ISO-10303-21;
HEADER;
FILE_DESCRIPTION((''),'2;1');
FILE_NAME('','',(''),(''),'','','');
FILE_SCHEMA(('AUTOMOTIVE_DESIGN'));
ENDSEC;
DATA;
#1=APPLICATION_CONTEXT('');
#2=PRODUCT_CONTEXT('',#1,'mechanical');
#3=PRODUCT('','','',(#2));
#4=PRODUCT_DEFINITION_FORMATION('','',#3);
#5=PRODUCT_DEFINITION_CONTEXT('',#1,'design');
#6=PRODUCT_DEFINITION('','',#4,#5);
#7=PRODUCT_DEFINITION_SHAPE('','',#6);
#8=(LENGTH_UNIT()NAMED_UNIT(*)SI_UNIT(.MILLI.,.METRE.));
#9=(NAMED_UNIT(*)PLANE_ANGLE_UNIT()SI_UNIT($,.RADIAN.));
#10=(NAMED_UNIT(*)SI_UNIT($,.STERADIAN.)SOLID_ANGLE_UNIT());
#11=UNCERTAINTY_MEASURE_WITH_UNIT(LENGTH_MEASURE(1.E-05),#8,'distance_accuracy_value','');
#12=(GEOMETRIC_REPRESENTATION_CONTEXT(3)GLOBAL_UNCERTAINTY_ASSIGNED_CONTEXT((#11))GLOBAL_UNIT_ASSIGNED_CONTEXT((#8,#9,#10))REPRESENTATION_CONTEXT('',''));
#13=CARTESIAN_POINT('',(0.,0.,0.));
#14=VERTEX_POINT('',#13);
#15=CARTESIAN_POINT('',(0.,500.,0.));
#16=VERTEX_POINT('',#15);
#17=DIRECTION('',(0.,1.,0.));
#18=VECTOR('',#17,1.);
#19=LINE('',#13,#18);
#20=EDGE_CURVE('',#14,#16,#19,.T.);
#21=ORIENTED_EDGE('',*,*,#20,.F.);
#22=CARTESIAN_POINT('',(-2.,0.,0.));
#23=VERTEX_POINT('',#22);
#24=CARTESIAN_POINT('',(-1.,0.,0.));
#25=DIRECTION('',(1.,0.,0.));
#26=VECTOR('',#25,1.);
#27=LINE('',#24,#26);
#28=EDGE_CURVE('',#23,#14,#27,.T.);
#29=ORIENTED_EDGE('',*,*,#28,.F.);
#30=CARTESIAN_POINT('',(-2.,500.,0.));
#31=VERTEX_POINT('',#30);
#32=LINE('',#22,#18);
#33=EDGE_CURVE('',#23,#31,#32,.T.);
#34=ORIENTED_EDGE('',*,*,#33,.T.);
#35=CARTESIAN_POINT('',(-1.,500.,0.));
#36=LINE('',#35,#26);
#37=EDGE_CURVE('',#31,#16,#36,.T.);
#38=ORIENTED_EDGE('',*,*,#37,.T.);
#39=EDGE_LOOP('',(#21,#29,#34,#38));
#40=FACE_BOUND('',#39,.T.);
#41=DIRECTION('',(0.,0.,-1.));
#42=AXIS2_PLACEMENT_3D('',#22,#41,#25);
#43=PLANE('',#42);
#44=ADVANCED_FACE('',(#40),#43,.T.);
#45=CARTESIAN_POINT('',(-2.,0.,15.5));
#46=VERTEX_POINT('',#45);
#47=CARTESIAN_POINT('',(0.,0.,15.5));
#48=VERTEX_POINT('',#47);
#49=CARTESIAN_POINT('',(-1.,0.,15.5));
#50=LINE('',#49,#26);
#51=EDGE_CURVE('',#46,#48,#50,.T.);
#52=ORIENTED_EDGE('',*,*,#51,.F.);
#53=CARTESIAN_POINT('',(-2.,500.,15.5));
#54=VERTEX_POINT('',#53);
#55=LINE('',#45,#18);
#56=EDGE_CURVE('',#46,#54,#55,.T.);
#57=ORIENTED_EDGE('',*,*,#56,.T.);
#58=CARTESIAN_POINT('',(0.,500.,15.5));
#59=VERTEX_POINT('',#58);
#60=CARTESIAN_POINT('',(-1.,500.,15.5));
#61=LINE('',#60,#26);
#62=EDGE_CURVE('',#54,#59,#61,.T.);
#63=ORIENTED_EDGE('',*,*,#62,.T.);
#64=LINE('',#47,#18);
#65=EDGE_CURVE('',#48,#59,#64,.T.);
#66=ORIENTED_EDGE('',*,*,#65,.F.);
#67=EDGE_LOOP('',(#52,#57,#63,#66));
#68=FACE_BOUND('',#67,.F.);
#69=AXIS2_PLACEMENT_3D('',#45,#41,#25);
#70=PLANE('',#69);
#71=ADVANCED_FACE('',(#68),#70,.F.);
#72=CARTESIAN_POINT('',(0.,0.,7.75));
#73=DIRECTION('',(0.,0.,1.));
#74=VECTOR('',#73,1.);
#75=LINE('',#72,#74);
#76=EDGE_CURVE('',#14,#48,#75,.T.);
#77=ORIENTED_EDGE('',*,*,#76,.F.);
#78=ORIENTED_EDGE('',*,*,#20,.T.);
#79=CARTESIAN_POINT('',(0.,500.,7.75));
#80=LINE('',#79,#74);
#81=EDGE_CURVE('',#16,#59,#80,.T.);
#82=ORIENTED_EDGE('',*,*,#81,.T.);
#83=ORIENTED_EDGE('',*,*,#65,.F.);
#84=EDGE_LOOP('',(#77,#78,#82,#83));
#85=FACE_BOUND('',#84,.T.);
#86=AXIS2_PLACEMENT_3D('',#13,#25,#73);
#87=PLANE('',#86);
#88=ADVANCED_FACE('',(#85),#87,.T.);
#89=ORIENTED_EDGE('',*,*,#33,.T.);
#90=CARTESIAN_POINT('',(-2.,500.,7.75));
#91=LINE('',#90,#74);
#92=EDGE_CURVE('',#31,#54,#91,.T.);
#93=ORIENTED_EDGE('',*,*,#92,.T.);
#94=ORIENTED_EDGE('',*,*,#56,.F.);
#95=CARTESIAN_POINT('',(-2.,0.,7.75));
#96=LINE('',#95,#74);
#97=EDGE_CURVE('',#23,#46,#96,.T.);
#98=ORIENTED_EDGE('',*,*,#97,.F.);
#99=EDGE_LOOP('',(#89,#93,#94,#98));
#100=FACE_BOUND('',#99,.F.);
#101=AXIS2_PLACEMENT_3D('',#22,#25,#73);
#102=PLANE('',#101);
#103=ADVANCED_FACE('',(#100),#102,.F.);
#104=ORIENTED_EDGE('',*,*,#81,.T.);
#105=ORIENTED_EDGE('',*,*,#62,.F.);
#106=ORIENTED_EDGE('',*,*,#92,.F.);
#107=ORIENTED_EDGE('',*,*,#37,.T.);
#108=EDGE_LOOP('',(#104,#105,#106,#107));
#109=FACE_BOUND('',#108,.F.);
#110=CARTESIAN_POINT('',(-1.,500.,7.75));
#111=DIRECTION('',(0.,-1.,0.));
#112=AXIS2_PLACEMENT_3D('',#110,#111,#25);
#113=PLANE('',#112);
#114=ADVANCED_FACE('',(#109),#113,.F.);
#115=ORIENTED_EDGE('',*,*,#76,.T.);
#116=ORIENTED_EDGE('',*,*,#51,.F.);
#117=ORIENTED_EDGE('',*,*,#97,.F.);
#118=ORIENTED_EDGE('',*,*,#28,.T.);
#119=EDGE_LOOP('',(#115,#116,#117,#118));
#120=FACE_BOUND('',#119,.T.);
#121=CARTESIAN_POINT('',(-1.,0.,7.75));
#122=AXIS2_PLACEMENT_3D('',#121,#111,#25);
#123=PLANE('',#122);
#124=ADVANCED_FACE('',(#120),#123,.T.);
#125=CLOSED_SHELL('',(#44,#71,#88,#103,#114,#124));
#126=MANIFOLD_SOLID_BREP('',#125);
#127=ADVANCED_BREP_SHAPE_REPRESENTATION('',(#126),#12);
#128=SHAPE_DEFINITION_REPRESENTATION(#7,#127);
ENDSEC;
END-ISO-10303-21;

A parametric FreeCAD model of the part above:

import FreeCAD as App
import Part
import Sketcher

V = App.Vector

doc = App.newDocument("Part")
params = doc.addObject("Spreadsheet::Sheet", "Params")
for row, (alias, value) in enumerate([
    ("sketch1_width", "2 mm"),
    ("sketch1_height", "15.5 mm"),
    ("pad1_length", "500 mm"),
], start=1):
    params.set(f"A{row}", alias)
    params.set(f"B{row}", "=" + value)
    params.setAlias(f"B{row}", alias)

body = doc.addObject("PartDesign::Body", "Body")

# Sketch on XZ plane
sketch1 = body.newObject("Sketcher::SketchObject", "Sketch")
sketch1.AttachmentSupport = (doc.getObject("XZ_Plane"), [""])
sketch1.MapMode = "FlatFace"
sketch1.addGeometry([
    Part.LineSegment(V(-2, 15.5, 0), V(-2, 0, 0)),
    Part.LineSegment(V(-2, 0, 0), V(0, 0, 0)),
    Part.LineSegment(V(0, 0, 0), V(0, 15.5, 0)),
    Part.LineSegment(V(0, 15.5, 0), V(-2, 15.5, 0)),
], False)
sketch1.addConstraint([
    Sketcher.Constraint("Coincident", 0, 2, 1, 1),
    Sketcher.Constraint("Coincident", 1, 2, 2, 1),
    Sketcher.Constraint("Coincident", 2, 2, 3, 1),
    Sketcher.Constraint("Coincident", 3, 2, 0, 1),
    Sketcher.Constraint("Vertical", 0),
    Sketcher.Constraint("Horizontal", 1),
    Sketcher.Constraint("Vertical", 2),
    Sketcher.Constraint("Horizontal", 3),
    Sketcher.Constraint("Coincident", 1, 2, -1, 1),
    Sketcher.Constraint("DistanceX", 1, 1, 1, 2, 2.0),
    Sketcher.Constraint("DistanceY", 0, 2, 0, 1, 15.5),
])
sketch1.setExpression("Constraints[9]", "Params.sketch1_width")
sketch1.setExpression("Constraints[10]", "Params.sketch1_height")
pad1 = body.newObject("PartDesign::Pad", "Pad")
pad1.Profile = sketch1
pad1.setExpression("Length", "Params.pad1_length")
pad1.Reversed = True

doc.recompute()
